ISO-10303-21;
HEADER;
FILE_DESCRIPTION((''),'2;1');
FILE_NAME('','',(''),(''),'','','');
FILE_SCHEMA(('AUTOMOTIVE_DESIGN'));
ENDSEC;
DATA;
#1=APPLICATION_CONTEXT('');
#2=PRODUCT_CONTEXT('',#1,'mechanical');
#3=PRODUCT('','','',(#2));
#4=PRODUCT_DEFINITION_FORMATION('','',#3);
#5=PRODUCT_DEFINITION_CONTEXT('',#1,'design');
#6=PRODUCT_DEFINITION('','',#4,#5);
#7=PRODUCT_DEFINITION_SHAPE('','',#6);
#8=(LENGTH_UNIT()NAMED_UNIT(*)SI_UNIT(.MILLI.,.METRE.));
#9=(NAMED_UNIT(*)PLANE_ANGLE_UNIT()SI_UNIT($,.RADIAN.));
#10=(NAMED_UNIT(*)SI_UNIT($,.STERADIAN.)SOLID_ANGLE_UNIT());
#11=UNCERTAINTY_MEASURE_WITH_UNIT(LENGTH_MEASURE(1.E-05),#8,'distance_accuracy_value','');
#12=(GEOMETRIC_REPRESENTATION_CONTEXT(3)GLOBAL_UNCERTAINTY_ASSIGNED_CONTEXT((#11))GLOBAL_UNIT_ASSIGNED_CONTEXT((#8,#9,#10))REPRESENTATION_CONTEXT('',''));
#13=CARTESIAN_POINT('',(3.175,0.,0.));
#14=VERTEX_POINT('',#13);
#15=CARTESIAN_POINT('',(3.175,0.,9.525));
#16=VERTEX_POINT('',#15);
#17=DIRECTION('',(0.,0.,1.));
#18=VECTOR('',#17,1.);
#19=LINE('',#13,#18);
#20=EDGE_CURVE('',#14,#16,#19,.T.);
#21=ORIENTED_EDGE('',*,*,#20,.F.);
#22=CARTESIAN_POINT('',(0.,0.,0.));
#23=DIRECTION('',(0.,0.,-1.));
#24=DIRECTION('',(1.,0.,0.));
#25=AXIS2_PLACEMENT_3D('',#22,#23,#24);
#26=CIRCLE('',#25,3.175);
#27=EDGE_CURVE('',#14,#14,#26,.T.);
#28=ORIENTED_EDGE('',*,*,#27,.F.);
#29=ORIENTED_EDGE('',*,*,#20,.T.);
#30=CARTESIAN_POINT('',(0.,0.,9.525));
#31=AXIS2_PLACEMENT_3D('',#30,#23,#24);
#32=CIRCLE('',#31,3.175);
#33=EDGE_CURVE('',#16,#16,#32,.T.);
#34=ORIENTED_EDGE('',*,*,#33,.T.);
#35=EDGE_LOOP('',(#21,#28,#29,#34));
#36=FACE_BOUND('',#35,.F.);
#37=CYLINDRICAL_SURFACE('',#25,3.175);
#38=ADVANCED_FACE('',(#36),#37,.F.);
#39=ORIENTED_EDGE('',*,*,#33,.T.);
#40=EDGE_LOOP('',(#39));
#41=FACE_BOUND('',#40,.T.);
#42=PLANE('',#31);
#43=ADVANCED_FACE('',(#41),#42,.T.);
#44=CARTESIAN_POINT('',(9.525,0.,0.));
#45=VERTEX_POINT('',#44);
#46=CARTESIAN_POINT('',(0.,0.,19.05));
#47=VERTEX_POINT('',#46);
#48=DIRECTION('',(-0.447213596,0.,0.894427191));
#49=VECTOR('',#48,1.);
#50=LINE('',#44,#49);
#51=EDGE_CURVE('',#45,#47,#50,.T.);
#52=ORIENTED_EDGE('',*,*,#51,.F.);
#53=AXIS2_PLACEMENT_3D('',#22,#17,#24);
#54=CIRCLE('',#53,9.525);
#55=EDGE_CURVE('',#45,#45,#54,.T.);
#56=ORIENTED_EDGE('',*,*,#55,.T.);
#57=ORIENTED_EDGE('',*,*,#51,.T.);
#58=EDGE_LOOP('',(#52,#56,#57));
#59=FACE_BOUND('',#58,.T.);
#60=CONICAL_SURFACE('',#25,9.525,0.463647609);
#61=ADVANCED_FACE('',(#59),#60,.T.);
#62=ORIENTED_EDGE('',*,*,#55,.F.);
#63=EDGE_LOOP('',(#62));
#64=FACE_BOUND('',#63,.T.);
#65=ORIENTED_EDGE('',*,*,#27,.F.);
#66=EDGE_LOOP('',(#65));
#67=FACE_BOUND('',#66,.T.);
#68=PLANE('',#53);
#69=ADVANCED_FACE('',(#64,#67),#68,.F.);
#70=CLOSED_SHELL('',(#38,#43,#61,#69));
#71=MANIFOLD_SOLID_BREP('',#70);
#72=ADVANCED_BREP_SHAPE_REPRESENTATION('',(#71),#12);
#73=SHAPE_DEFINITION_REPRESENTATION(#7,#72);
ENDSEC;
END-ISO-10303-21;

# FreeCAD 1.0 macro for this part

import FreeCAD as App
import Part
import Sketcher

V = App.Vector
Q = App.Units.Quantity

doc = App.newDocument("Part")
params = doc.addObject("Spreadsheet::Sheet", "Params")
for row, (alias, value) in enumerate([
    ("sketch1_height", "0.75 in"),
    ("sketch1_width", "0.375 in"),
    ("revolution_angle", "360 deg"),
    ("sketch2_diameter", "0.25 in"),
    ("pocket1_length", "0.375 in"),
], start=1):
    params.set(f"A{row}", alias)
    params.set(f"B{row}", "=" + value)
    params.setAlias(f"B{row}", alias)

body = doc.addObject("PartDesign::Body", "Body")

# Sketch on XZ plane
sketch1 = body.newObject("Sketcher::SketchObject", "Sketch")
sketch1.AttachmentSupport = (doc.getObject("XZ_Plane"), [""])
sketch1.MapMode = "FlatFace"
sketch1.addGeometry([
    Part.LineSegment(V(0, 19, 0), V(0, 0, 0)),
    Part.LineSegment(V(0, 0, 0), V(10, 0, 0)),
    Part.LineSegment(V(10, 0, 0), V(0, 19, 0)),
], False)
sketch1.addConstraint([
    Sketcher.Constraint("Coincident", 0, 2, 1, 1),
    Sketcher.Constraint("Coincident", 1, 2, 2, 1),
    Sketcher.Constraint("Coincident", 2, 2, 0, 1),
    Sketcher.Constraint("Vertical", 0),
    Sketcher.Constraint("Horizontal", 1),
    Sketcher.Constraint("Coincident", 0, 2, -1, 1),
    Sketcher.Constraint("DistanceY", 0, 2, 0, 1, Q("0.75 in")),
    Sketcher.Constraint("DistanceX", 1, 1, 1, 2, Q("0.375 in")),
])
sketch1.setExpression("Constraints[6]", "Params.sketch1_height")
sketch1.setExpression("Constraints[7]", "Params.sketch1_width")
revolution = body.newObject("PartDesign::Revolution", "Revolution")
revolution.Profile = sketch1
revolution.ReferenceAxis = (sketch1, ["V_Axis"])
revolution.setExpression("Angle", "Params.revolution_angle")

# Sketch on XY plane
sketch2 = body.newObject("Sketcher::SketchObject", "Sketch001")
sketch2.AttachmentSupport = (doc.getObject("XY_Plane"), [""])
sketch2.MapMode = "FlatFace"
sketch2.addGeometry(Part.Circle(V(0, 0, 0), V(0, 0, 1), 3.2), False)
sketch2.addConstraint([
    Sketcher.Constraint("Coincident", 0, 3, -1, 1),
    Sketcher.Constraint("Diameter", 0, Q("0.25 in")),
])
sketch2.setExpression("Constraints[1]", "Params.sketch2_diameter")
pocket1 = body.newObject("PartDesign::Pocket", "Pocket")
pocket1.Profile = sketch2
pocket1.setExpression("Length", "Params.pocket1_length")
pocket1.Reversed = True

doc.recompute()
